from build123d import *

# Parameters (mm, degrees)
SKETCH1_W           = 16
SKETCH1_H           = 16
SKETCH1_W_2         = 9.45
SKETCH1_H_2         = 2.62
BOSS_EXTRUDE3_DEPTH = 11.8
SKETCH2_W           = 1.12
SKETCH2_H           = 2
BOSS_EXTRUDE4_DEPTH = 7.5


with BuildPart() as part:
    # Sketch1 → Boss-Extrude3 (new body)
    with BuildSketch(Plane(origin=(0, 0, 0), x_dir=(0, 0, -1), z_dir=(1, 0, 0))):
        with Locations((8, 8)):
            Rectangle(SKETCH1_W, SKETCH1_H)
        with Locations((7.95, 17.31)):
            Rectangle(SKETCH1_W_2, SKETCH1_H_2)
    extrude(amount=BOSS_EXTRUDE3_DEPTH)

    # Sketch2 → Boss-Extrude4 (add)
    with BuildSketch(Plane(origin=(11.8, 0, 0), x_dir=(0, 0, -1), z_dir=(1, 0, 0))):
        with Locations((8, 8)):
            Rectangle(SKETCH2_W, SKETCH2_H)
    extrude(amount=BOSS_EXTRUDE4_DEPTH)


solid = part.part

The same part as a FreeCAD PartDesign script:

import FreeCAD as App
import Part
import Sketcher
from FreeCAD import Vector

doc = App.newDocument("Part")
body = doc.addObject("PartDesign::Body", "Body")

# Sketch on YZ plane
sketch1 = body.newObject("Sketcher::SketchObject", "Sketch")
sketch1.AttachmentSupport = (doc.getObject("YZ_Plane"), [""])
sketch1.MapMode = "FlatFace"
sketch1.addGeometry(Part.LineSegment(Vector(16, 0, 0), Vector(0, 0, 0)), False)
sketch1.addGeometry(Part.LineSegment(Vector(0, 0, 0), Vector(0, -16, 0)), False)
sketch1.addGeometry(Part.LineSegment(Vector(0, -16, 0), Vector(16, -16, 0)), False)
sketch1.addGeometry(Part.LineSegment(Vector(16, -16, 0), Vector(16, -12.7, 0)), False)
sketch1.addGeometry(Part.LineSegment(Vector(16, -12.7, 0), Vector(18.6, -12.7, 0)), False)
sketch1.addGeometry(Part.LineSegment(Vector(18.6, -12.7, 0), Vector(18.6, -3.2, 0)), False)
sketch1.addGeometry(Part.LineSegment(Vector(18.6, -3.2, 0), Vector(16, -3.2, 0)), False)
sketch1.addGeometry(Part.LineSegment(Vector(16, -3.2, 0), Vector(16, 0, 0)), False)
sketch1.addConstraint(Sketcher.Constraint("Coincident", 0, 2, 1, 1))
sketch1.addConstraint(Sketcher.Constraint("Coincident", 1, 2, 2, 1))
sketch1.addConstraint(Sketcher.Constraint("Coincident", 2, 2, 3, 1))
sketch1.addConstraint(Sketcher.Constraint("Coincident", 3, 2, 4, 1))
sketch1.addConstraint(Sketcher.Constraint("Coincident", 4, 2, 5, 1))
sketch1.addConstraint(Sketcher.Constraint("Coincident", 5, 2, 6, 1))
sketch1.addConstraint(Sketcher.Constraint("Coincident", 6, 2, 7, 1))
sketch1.addConstraint(Sketcher.Constraint("Coincident", 7, 2, 0, 1))
sketch1.addConstraint(Sketcher.Constraint("Horizontal", 0))
sketch1.addConstraint(Sketcher.Constraint("Vertical", 1))
sketch1.addConstraint(Sketcher.Constraint("Horizontal", 2))
sketch1.addConstraint(Sketcher.Constraint("Vertical", 3))
sketch1.addConstraint(Sketcher.Constraint("Horizontal", 4))
sketch1.addConstraint(Sketcher.Constraint("Vertical", 5))
sketch1.addConstraint(Sketcher.Constraint("Horizontal", 6))
sketch1.addConstraint(Sketcher.Constraint("Vertical", 7))
sketch1.addConstraint(Sketcher.Constraint("Coincident", 0, 2, -1, 1))
sketch1.addConstraint(Sketcher.Constraint("Vertical", 3, 2, 6, 2))
sketch1.addConstraint(Sketcher.Constraint("Equal", 2, 1))
sketch1.addConstraint(Sketcher.Constraint("DistanceX", 0, 2, 0, 1, 16.0))
sketch1.addConstraint(Sketcher.Constraint("DistanceX", 4, 1, 4, 2, 2.62))
sketch1.addConstraint(Sketcher.Constraint("DistanceY", 5, 1, 5, 2, 9.45))
sketch1.addConstraint(Sketcher.Constraint("DistanceY", 3, 1, 3, 2, 3.325))
pad1 = body.newObject("PartDesign::Pad", "Pad")
pad1.Profile = sketch1
pad1.Length = 11.8

# Sketch on YZ plane
sketch2 = body.newObject("Sketcher::SketchObject", "Sketch001")
sketch2.AttachmentSupport = (doc.getObject("YZ_Plane"), [""])
sketch2.MapMode = "FlatFace"
sketch2.AttachmentOffset = App.Placement(Vector(0, 0, 11.8), App.Rotation())
sketch2.addGeometry(Part.LineSegment(Vector(9, -7.4, 0), Vector(7, -7.4, 0)), False)
sketch2.addGeometry(Part.LineSegment(Vector(7, -7.4, 0), Vector(7, -8.6, 0)), False)
sketch2.addGeometry(Part.LineSegment(Vector(7, -8.6, 0), Vector(9, -8.6, 0)), False)
sketch2.addGeometry(Part.LineSegment(Vector(9, -8.6, 0), Vector(9, -7.4, 0)), False)
sketch2.addConstraint(Sketcher.Constraint("Coincident", 0, 2, 1, 1))
sketch2.addConstraint(Sketcher.Constraint("Coincident", 1, 2, 2, 1))
sketch2.addConstraint(Sketcher.Constraint("Coincident", 2, 2, 3, 1))
sketch2.addConstraint(Sketcher.Constraint("Coincident", 3, 2, 0, 1))
sketch2.addConstraint(Sketcher.Constraint("Horizontal", 0))
sketch2.addConstraint(Sketcher.Constraint("Vertical", 1))
sketch2.addConstraint(Sketcher.Constraint("Horizontal", 2))
sketch2.addConstraint(Sketcher.Constraint("Vertical", 3))
sketch2.addConstraint(Sketcher.Constraint("DistanceX", 0, 2, 0, 1, 2.0))
sketch2.addConstraint(Sketcher.Constraint("DistanceX", -1, 1, 0, 2, 7.0))
sketch2.addConstraint(Sketcher.Constraint("DistanceY", 1, 2, 1, 1, 1.12))
sketch2.addConstraint(Sketcher.Constraint("DistanceY", 0, 2, -1, 1, 7.44))
pad2 = body.newObject("PartDesign::Pad", "Pad001")
pad2.Profile = sketch2
pad2.Length = 7.5

doc.recompute()
